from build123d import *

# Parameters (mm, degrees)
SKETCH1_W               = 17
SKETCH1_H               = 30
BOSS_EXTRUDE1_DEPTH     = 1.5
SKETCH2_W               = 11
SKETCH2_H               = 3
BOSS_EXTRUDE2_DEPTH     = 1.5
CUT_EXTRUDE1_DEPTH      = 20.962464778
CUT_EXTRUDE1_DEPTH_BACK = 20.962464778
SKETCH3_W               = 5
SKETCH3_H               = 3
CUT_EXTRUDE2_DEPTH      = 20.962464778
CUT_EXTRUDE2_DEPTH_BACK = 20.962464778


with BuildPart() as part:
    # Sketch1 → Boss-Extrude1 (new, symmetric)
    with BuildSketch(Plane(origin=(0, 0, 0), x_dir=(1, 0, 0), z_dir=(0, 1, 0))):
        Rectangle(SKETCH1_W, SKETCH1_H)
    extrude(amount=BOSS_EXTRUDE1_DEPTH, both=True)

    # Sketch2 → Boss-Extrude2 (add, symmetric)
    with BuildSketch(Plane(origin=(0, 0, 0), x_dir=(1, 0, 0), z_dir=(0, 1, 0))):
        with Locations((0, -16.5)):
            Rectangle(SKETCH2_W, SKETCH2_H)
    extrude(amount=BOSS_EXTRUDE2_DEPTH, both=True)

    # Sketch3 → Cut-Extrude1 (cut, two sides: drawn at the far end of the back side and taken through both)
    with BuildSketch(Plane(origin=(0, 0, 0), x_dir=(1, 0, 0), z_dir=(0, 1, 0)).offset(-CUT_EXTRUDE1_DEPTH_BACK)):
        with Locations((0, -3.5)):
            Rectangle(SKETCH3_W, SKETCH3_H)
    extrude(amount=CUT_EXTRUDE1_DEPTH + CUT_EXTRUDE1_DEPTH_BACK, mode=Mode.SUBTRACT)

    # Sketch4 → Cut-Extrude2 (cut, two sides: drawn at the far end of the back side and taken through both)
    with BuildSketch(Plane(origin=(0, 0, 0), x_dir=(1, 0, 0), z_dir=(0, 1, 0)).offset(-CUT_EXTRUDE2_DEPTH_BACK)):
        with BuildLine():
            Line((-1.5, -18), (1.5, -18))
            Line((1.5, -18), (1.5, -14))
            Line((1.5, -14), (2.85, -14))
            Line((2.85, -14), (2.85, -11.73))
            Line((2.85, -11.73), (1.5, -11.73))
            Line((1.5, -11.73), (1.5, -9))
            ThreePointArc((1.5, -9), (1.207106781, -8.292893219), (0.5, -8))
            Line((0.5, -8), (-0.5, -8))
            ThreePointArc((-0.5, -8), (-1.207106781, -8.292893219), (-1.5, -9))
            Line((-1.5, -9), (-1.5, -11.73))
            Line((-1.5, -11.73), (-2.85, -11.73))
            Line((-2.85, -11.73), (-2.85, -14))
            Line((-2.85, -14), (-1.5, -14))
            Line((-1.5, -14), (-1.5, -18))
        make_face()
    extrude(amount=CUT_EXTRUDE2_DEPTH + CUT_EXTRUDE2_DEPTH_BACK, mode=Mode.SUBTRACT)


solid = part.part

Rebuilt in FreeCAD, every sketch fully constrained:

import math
import FreeCAD as App
import Part
import Sketcher

doc = App.newDocument("Part")
body = doc.addObject("PartDesign::Body", "Body")

sketch1 = body.newObject("Sketcher::SketchObject", "Sketch")
sketch1.AttachmentSupport = (doc.getObject("XZ_Plane"), [""])
sketch1.MapMode = "FlatFace"
sketch1.addGeometry([
    Part.LineSegment(App.Vector(-8.5, -15, 0), App.Vector(-8.5, 15, 0)),
    Part.LineSegment(App.Vector(-8.5, 15, 0), App.Vector(8.5, 15, 0)),
    Part.LineSegment(App.Vector(8.5, 15, 0), App.Vector(8.5, -15, 0)),
    Part.LineSegment(App.Vector(8.5, -15, 0), App.Vector(-8.5, -15, 0)),
], False)
sketch1.addConstraint([
    Sketcher.Constraint("Coincident", 0, 2, 1, 1),
    Sketcher.Constraint("Coincident", 1, 2, 2, 1),
    Sketcher.Constraint("Coincident", 2, 2, 3, 1),
    Sketcher.Constraint("Coincident", 3, 2, 0, 1),
    Sketcher.Constraint("Vertical", 0),
    Sketcher.Constraint("Horizontal", 1),
    Sketcher.Constraint("Vertical", 2),
    Sketcher.Constraint("Horizontal", 3),
    Sketcher.Constraint("Symmetric", 0, 2, 2, 2, -1, 1),
    Sketcher.Constraint("DistanceX", 1, 1, 1, 2, 17.0),
    Sketcher.Constraint("DistanceY", 0, 1, 0, 2, 30.0),
])
pad1 = body.newObject("PartDesign::Pad", "Pad")
pad1.Profile = sketch1
pad1.Length = 3
pad1.Midplane = True

sketch2 = body.newObject("Sketcher::SketchObject", "Sketch001")
sketch2.AttachmentSupport = (doc.getObject("XZ_Plane"), [""])
sketch2.MapMode = "FlatFace"
sketch2.addGeometry([
    Part.LineSegment(App.Vector(-5.5, 15, 0), App.Vector(-5.5, 18, 0)),
    Part.LineSegment(App.Vector(-5.5, 18, 0), App.Vector(5.5, 18, 0)),
    Part.LineSegment(App.Vector(5.5, 18, 0), App.Vector(5.5, 15, 0)),
    Part.LineSegment(App.Vector(5.5, 15, 0), App.Vector(-5.5, 15, 0)),
], False)
sketch2.addConstraint([
    Sketcher.Constraint("Coincident", 0, 2, 1, 1),
    Sketcher.Constraint("Coincident", 1, 2, 2, 1),
    Sketcher.Constraint("Coincident", 2, 2, 3, 1),
    Sketcher.Constraint("Coincident", 3, 2, 0, 1),
    Sketcher.Constraint("Vertical", 0),
    Sketcher.Constraint("Horizontal", 1),
    Sketcher.Constraint("Vertical", 2),
    Sketcher.Constraint("Horizontal", 3),
    Sketcher.Constraint("DistanceX", 1, 1, 1, 2, 11.0),
    Sketcher.Constraint("DistanceY", 0, 1, 0, 2, 3.0),
    Sketcher.Constraint("DistanceY", -1, 1, 0, 2, 18.0),
    Sketcher.Constraint("DistanceX", 0, 2, -1, 1, 5.5),
])
pad2 = body.newObject("PartDesign::Pad", "Pad001")
pad2.Profile = sketch2
pad2.Length = 3
pad2.Midplane = True

sketch3 = body.newObject("Sketcher::SketchObject", "Sketch002")
sketch3.AttachmentSupport = (doc.getObject("XZ_Plane"), [""])
sketch3.MapMode = "FlatFace"
sketch3.addGeometry([
    Part.LineSegment(App.Vector(-2.5, 2, 0), App.Vector(-2.5, 5, 0)),
    Part.LineSegment(App.Vector(-2.5, 5, 0), App.Vector(2.5, 5, 0)),
    Part.LineSegment(App.Vector(2.5, 5, 0), App.Vector(2.5, 2, 0)),
    Part.LineSegment(App.Vector(2.5, 2, 0), App.Vector(-2.5, 2, 0)),
], False)
sketch3.addConstraint([
    Sketcher.Constraint("Coincident", 0, 2, 1, 1),
    Sketcher.Constraint("Coincident", 1, 2, 2, 1),
    Sketcher.Constraint("Coincident", 2, 2, 3, 1),
    Sketcher.Constraint("Coincident", 3, 2, 0, 1),
    Sketcher.Constraint("Vertical", 0),
    Sketcher.Constraint("Horizontal", 1),
    Sketcher.Constraint("Vertical", 2),
    Sketcher.Constraint("Horizontal", 3),
    Sketcher.Constraint("DistanceX", 1, 1, 1, 2, 5.0),
    Sketcher.Constraint("DistanceY", 0, 1, 0, 2, 3.0),
    Sketcher.Constraint("DistanceY", -1, 1, 0, 2, 5.0),
    Sketcher.Constraint("DistanceX", 0, 2, -1, 1, 2.5),
])
pocket1 = body.newObject("PartDesign::Pocket", "Pocket")
pocket1.Profile = sketch3
pocket1.Type = "ThroughAll"
pocket1.Midplane = True

sketch4 = body.newObject("Sketcher::SketchObject", "Sketch003")
sketch4.AttachmentSupport = (doc.getObject("XZ_Plane"), [""])
sketch4.MapMode = "FlatFace"
sketch4.addGeometry([
    Part.LineSegment(App.Vector(-1.5, 18, 0), App.Vector(1.5, 18, 0)),
    Part.LineSegment(App.Vector(1.5, 18, 0), App.Vector(1.5, 14, 0)),
    Part.LineSegment(App.Vector(1.5, 14, 0), App.Vector(2.85, 14, 0)),
    Part.LineSegment(App.Vector(2.85, 14, 0), App.Vector(2.85, 11.73, 0)),
    Part.LineSegment(App.Vector(2.85, 11.73, 0), App.Vector(1.5, 11.73, 0)),
    Part.LineSegment(App.Vector(1.5, 11.73, 0), App.Vector(1.5, 9, 0)),
    Part.ArcOfCircle(Part.Circle(App.Vector(0.5, 9, 0), App.Vector(0, 0, 1), 1), math.radians(-90), math.radians(0)),
    Part.LineSegment(App.Vector(0.5, 8, 0), App.Vector(-0.5, 8, 0)),
    Part.ArcOfCircle(Part.Circle(App.Vector(-0.5, 9, 0), App.Vector(0, 0, 1), 1), math.radians(-180), math.radians(-90)),
    Part.LineSegment(App.Vector(-1.5, 9, 0), App.Vector(-1.5, 11.73, 0)),
    Part.LineSegment(App.Vector(-1.5, 11.73, 0), App.Vector(-2.85, 11.73, 0)),
    Part.LineSegment(App.Vector(-2.85, 11.73, 0), App.Vector(-2.85, 14, 0)),
    Part.LineSegment(App.Vector(-2.85, 14, 0), App.Vector(-1.5, 14, 0)),
    Part.LineSegment(App.Vector(-1.5, 14, 0), App.Vector(-1.5, 18, 0)),
], False)
sketch4.addConstraint([
    Sketcher.Constraint("Coincident", 0, 2, 1, 1),
    Sketcher.Constraint("Coincident", 1, 2, 2, 1),
    Sketcher.Constraint("Coincident", 2, 2, 3, 1),
    Sketcher.Constraint("Coincident", 3, 2, 4, 1),
    Sketcher.Constraint("Coincident", 4, 2, 5, 1),
    Sketcher.Constraint("Tangent", 5, 2, 6, 2),
    Sketcher.Constraint("Tangent", 6, 1, 7, 1),
    Sketcher.Constraint("Tangent", 7, 2, 8, 2),
    Sketcher.Constraint("Tangent", 8, 1, 9, 1),
    Sketcher.Constraint("Coincident", 9, 2, 10, 1),
    Sketcher.Constraint("Coincident", 10, 2, 11, 1),
    Sketcher.Constraint("Coincident", 11, 2, 12, 1),
    Sketcher.Constraint("Coincident", 12, 2, 13, 1),
    Sketcher.Constraint("Coincident", 13, 2, 0, 1),
    Sketcher.Constraint("Horizontal", 0),
    Sketcher.Constraint("Vertical", 1),
    Sketcher.Constraint("Horizontal", 2),
    Sketcher.Constraint("Vertical", 3),
    Sketcher.Constraint("Horizontal", 4),
    Sketcher.Constraint("Vertical", 5),
    Sketcher.Constraint("Horizontal", 7),
    Sketcher.Constraint("Vertical", 9),
    Sketcher.Constraint("Horizontal", 10),
    Sketcher.Constraint("Vertical", 11),
    Sketcher.Constraint("Horizontal", 12),
    Sketcher.Constraint("Vertical", 13),
    Sketcher.Constraint("Equal", 6, 8),
    Sketcher.Constraint("Symmetric", 4, 2, 9, 2, -2),
    Sketcher.Constraint("Symmetric", 2, 2, 11, 2, -2),
    Sketcher.Constraint("Vertical", 1, 2, 4, 2),
    Sketcher.Constraint("Vertical", 9, 2, 12, 2),
    Sketcher.Constraint("Radius", 6, 1.0),
    Sketcher.Constraint("DistanceX", 0, 1, 0, 2, 3.0),
    Sketcher.Constraint("DistanceY", 1, 2, 1, 1, 4.0),
    Sketcher.Constraint("DistanceY", -1, 1, 6, 3, 9.0),
    Sketcher.Constraint("DistanceY", -1, 1, 0, 2, 18.0),
    Sketcher.Constraint("DistanceX", 2, 1, 2, 2, 1.35),
    Sketcher.Constraint("DistanceY", 3, 2, 3, 1, 2.27),
])
pocket2 = body.newObject("PartDesign::Pocket", "Pocket001")
pocket2.Profile = sketch4
pocket2.Type = "ThroughAll"
pocket2.Midplane = True

doc.recompute()
